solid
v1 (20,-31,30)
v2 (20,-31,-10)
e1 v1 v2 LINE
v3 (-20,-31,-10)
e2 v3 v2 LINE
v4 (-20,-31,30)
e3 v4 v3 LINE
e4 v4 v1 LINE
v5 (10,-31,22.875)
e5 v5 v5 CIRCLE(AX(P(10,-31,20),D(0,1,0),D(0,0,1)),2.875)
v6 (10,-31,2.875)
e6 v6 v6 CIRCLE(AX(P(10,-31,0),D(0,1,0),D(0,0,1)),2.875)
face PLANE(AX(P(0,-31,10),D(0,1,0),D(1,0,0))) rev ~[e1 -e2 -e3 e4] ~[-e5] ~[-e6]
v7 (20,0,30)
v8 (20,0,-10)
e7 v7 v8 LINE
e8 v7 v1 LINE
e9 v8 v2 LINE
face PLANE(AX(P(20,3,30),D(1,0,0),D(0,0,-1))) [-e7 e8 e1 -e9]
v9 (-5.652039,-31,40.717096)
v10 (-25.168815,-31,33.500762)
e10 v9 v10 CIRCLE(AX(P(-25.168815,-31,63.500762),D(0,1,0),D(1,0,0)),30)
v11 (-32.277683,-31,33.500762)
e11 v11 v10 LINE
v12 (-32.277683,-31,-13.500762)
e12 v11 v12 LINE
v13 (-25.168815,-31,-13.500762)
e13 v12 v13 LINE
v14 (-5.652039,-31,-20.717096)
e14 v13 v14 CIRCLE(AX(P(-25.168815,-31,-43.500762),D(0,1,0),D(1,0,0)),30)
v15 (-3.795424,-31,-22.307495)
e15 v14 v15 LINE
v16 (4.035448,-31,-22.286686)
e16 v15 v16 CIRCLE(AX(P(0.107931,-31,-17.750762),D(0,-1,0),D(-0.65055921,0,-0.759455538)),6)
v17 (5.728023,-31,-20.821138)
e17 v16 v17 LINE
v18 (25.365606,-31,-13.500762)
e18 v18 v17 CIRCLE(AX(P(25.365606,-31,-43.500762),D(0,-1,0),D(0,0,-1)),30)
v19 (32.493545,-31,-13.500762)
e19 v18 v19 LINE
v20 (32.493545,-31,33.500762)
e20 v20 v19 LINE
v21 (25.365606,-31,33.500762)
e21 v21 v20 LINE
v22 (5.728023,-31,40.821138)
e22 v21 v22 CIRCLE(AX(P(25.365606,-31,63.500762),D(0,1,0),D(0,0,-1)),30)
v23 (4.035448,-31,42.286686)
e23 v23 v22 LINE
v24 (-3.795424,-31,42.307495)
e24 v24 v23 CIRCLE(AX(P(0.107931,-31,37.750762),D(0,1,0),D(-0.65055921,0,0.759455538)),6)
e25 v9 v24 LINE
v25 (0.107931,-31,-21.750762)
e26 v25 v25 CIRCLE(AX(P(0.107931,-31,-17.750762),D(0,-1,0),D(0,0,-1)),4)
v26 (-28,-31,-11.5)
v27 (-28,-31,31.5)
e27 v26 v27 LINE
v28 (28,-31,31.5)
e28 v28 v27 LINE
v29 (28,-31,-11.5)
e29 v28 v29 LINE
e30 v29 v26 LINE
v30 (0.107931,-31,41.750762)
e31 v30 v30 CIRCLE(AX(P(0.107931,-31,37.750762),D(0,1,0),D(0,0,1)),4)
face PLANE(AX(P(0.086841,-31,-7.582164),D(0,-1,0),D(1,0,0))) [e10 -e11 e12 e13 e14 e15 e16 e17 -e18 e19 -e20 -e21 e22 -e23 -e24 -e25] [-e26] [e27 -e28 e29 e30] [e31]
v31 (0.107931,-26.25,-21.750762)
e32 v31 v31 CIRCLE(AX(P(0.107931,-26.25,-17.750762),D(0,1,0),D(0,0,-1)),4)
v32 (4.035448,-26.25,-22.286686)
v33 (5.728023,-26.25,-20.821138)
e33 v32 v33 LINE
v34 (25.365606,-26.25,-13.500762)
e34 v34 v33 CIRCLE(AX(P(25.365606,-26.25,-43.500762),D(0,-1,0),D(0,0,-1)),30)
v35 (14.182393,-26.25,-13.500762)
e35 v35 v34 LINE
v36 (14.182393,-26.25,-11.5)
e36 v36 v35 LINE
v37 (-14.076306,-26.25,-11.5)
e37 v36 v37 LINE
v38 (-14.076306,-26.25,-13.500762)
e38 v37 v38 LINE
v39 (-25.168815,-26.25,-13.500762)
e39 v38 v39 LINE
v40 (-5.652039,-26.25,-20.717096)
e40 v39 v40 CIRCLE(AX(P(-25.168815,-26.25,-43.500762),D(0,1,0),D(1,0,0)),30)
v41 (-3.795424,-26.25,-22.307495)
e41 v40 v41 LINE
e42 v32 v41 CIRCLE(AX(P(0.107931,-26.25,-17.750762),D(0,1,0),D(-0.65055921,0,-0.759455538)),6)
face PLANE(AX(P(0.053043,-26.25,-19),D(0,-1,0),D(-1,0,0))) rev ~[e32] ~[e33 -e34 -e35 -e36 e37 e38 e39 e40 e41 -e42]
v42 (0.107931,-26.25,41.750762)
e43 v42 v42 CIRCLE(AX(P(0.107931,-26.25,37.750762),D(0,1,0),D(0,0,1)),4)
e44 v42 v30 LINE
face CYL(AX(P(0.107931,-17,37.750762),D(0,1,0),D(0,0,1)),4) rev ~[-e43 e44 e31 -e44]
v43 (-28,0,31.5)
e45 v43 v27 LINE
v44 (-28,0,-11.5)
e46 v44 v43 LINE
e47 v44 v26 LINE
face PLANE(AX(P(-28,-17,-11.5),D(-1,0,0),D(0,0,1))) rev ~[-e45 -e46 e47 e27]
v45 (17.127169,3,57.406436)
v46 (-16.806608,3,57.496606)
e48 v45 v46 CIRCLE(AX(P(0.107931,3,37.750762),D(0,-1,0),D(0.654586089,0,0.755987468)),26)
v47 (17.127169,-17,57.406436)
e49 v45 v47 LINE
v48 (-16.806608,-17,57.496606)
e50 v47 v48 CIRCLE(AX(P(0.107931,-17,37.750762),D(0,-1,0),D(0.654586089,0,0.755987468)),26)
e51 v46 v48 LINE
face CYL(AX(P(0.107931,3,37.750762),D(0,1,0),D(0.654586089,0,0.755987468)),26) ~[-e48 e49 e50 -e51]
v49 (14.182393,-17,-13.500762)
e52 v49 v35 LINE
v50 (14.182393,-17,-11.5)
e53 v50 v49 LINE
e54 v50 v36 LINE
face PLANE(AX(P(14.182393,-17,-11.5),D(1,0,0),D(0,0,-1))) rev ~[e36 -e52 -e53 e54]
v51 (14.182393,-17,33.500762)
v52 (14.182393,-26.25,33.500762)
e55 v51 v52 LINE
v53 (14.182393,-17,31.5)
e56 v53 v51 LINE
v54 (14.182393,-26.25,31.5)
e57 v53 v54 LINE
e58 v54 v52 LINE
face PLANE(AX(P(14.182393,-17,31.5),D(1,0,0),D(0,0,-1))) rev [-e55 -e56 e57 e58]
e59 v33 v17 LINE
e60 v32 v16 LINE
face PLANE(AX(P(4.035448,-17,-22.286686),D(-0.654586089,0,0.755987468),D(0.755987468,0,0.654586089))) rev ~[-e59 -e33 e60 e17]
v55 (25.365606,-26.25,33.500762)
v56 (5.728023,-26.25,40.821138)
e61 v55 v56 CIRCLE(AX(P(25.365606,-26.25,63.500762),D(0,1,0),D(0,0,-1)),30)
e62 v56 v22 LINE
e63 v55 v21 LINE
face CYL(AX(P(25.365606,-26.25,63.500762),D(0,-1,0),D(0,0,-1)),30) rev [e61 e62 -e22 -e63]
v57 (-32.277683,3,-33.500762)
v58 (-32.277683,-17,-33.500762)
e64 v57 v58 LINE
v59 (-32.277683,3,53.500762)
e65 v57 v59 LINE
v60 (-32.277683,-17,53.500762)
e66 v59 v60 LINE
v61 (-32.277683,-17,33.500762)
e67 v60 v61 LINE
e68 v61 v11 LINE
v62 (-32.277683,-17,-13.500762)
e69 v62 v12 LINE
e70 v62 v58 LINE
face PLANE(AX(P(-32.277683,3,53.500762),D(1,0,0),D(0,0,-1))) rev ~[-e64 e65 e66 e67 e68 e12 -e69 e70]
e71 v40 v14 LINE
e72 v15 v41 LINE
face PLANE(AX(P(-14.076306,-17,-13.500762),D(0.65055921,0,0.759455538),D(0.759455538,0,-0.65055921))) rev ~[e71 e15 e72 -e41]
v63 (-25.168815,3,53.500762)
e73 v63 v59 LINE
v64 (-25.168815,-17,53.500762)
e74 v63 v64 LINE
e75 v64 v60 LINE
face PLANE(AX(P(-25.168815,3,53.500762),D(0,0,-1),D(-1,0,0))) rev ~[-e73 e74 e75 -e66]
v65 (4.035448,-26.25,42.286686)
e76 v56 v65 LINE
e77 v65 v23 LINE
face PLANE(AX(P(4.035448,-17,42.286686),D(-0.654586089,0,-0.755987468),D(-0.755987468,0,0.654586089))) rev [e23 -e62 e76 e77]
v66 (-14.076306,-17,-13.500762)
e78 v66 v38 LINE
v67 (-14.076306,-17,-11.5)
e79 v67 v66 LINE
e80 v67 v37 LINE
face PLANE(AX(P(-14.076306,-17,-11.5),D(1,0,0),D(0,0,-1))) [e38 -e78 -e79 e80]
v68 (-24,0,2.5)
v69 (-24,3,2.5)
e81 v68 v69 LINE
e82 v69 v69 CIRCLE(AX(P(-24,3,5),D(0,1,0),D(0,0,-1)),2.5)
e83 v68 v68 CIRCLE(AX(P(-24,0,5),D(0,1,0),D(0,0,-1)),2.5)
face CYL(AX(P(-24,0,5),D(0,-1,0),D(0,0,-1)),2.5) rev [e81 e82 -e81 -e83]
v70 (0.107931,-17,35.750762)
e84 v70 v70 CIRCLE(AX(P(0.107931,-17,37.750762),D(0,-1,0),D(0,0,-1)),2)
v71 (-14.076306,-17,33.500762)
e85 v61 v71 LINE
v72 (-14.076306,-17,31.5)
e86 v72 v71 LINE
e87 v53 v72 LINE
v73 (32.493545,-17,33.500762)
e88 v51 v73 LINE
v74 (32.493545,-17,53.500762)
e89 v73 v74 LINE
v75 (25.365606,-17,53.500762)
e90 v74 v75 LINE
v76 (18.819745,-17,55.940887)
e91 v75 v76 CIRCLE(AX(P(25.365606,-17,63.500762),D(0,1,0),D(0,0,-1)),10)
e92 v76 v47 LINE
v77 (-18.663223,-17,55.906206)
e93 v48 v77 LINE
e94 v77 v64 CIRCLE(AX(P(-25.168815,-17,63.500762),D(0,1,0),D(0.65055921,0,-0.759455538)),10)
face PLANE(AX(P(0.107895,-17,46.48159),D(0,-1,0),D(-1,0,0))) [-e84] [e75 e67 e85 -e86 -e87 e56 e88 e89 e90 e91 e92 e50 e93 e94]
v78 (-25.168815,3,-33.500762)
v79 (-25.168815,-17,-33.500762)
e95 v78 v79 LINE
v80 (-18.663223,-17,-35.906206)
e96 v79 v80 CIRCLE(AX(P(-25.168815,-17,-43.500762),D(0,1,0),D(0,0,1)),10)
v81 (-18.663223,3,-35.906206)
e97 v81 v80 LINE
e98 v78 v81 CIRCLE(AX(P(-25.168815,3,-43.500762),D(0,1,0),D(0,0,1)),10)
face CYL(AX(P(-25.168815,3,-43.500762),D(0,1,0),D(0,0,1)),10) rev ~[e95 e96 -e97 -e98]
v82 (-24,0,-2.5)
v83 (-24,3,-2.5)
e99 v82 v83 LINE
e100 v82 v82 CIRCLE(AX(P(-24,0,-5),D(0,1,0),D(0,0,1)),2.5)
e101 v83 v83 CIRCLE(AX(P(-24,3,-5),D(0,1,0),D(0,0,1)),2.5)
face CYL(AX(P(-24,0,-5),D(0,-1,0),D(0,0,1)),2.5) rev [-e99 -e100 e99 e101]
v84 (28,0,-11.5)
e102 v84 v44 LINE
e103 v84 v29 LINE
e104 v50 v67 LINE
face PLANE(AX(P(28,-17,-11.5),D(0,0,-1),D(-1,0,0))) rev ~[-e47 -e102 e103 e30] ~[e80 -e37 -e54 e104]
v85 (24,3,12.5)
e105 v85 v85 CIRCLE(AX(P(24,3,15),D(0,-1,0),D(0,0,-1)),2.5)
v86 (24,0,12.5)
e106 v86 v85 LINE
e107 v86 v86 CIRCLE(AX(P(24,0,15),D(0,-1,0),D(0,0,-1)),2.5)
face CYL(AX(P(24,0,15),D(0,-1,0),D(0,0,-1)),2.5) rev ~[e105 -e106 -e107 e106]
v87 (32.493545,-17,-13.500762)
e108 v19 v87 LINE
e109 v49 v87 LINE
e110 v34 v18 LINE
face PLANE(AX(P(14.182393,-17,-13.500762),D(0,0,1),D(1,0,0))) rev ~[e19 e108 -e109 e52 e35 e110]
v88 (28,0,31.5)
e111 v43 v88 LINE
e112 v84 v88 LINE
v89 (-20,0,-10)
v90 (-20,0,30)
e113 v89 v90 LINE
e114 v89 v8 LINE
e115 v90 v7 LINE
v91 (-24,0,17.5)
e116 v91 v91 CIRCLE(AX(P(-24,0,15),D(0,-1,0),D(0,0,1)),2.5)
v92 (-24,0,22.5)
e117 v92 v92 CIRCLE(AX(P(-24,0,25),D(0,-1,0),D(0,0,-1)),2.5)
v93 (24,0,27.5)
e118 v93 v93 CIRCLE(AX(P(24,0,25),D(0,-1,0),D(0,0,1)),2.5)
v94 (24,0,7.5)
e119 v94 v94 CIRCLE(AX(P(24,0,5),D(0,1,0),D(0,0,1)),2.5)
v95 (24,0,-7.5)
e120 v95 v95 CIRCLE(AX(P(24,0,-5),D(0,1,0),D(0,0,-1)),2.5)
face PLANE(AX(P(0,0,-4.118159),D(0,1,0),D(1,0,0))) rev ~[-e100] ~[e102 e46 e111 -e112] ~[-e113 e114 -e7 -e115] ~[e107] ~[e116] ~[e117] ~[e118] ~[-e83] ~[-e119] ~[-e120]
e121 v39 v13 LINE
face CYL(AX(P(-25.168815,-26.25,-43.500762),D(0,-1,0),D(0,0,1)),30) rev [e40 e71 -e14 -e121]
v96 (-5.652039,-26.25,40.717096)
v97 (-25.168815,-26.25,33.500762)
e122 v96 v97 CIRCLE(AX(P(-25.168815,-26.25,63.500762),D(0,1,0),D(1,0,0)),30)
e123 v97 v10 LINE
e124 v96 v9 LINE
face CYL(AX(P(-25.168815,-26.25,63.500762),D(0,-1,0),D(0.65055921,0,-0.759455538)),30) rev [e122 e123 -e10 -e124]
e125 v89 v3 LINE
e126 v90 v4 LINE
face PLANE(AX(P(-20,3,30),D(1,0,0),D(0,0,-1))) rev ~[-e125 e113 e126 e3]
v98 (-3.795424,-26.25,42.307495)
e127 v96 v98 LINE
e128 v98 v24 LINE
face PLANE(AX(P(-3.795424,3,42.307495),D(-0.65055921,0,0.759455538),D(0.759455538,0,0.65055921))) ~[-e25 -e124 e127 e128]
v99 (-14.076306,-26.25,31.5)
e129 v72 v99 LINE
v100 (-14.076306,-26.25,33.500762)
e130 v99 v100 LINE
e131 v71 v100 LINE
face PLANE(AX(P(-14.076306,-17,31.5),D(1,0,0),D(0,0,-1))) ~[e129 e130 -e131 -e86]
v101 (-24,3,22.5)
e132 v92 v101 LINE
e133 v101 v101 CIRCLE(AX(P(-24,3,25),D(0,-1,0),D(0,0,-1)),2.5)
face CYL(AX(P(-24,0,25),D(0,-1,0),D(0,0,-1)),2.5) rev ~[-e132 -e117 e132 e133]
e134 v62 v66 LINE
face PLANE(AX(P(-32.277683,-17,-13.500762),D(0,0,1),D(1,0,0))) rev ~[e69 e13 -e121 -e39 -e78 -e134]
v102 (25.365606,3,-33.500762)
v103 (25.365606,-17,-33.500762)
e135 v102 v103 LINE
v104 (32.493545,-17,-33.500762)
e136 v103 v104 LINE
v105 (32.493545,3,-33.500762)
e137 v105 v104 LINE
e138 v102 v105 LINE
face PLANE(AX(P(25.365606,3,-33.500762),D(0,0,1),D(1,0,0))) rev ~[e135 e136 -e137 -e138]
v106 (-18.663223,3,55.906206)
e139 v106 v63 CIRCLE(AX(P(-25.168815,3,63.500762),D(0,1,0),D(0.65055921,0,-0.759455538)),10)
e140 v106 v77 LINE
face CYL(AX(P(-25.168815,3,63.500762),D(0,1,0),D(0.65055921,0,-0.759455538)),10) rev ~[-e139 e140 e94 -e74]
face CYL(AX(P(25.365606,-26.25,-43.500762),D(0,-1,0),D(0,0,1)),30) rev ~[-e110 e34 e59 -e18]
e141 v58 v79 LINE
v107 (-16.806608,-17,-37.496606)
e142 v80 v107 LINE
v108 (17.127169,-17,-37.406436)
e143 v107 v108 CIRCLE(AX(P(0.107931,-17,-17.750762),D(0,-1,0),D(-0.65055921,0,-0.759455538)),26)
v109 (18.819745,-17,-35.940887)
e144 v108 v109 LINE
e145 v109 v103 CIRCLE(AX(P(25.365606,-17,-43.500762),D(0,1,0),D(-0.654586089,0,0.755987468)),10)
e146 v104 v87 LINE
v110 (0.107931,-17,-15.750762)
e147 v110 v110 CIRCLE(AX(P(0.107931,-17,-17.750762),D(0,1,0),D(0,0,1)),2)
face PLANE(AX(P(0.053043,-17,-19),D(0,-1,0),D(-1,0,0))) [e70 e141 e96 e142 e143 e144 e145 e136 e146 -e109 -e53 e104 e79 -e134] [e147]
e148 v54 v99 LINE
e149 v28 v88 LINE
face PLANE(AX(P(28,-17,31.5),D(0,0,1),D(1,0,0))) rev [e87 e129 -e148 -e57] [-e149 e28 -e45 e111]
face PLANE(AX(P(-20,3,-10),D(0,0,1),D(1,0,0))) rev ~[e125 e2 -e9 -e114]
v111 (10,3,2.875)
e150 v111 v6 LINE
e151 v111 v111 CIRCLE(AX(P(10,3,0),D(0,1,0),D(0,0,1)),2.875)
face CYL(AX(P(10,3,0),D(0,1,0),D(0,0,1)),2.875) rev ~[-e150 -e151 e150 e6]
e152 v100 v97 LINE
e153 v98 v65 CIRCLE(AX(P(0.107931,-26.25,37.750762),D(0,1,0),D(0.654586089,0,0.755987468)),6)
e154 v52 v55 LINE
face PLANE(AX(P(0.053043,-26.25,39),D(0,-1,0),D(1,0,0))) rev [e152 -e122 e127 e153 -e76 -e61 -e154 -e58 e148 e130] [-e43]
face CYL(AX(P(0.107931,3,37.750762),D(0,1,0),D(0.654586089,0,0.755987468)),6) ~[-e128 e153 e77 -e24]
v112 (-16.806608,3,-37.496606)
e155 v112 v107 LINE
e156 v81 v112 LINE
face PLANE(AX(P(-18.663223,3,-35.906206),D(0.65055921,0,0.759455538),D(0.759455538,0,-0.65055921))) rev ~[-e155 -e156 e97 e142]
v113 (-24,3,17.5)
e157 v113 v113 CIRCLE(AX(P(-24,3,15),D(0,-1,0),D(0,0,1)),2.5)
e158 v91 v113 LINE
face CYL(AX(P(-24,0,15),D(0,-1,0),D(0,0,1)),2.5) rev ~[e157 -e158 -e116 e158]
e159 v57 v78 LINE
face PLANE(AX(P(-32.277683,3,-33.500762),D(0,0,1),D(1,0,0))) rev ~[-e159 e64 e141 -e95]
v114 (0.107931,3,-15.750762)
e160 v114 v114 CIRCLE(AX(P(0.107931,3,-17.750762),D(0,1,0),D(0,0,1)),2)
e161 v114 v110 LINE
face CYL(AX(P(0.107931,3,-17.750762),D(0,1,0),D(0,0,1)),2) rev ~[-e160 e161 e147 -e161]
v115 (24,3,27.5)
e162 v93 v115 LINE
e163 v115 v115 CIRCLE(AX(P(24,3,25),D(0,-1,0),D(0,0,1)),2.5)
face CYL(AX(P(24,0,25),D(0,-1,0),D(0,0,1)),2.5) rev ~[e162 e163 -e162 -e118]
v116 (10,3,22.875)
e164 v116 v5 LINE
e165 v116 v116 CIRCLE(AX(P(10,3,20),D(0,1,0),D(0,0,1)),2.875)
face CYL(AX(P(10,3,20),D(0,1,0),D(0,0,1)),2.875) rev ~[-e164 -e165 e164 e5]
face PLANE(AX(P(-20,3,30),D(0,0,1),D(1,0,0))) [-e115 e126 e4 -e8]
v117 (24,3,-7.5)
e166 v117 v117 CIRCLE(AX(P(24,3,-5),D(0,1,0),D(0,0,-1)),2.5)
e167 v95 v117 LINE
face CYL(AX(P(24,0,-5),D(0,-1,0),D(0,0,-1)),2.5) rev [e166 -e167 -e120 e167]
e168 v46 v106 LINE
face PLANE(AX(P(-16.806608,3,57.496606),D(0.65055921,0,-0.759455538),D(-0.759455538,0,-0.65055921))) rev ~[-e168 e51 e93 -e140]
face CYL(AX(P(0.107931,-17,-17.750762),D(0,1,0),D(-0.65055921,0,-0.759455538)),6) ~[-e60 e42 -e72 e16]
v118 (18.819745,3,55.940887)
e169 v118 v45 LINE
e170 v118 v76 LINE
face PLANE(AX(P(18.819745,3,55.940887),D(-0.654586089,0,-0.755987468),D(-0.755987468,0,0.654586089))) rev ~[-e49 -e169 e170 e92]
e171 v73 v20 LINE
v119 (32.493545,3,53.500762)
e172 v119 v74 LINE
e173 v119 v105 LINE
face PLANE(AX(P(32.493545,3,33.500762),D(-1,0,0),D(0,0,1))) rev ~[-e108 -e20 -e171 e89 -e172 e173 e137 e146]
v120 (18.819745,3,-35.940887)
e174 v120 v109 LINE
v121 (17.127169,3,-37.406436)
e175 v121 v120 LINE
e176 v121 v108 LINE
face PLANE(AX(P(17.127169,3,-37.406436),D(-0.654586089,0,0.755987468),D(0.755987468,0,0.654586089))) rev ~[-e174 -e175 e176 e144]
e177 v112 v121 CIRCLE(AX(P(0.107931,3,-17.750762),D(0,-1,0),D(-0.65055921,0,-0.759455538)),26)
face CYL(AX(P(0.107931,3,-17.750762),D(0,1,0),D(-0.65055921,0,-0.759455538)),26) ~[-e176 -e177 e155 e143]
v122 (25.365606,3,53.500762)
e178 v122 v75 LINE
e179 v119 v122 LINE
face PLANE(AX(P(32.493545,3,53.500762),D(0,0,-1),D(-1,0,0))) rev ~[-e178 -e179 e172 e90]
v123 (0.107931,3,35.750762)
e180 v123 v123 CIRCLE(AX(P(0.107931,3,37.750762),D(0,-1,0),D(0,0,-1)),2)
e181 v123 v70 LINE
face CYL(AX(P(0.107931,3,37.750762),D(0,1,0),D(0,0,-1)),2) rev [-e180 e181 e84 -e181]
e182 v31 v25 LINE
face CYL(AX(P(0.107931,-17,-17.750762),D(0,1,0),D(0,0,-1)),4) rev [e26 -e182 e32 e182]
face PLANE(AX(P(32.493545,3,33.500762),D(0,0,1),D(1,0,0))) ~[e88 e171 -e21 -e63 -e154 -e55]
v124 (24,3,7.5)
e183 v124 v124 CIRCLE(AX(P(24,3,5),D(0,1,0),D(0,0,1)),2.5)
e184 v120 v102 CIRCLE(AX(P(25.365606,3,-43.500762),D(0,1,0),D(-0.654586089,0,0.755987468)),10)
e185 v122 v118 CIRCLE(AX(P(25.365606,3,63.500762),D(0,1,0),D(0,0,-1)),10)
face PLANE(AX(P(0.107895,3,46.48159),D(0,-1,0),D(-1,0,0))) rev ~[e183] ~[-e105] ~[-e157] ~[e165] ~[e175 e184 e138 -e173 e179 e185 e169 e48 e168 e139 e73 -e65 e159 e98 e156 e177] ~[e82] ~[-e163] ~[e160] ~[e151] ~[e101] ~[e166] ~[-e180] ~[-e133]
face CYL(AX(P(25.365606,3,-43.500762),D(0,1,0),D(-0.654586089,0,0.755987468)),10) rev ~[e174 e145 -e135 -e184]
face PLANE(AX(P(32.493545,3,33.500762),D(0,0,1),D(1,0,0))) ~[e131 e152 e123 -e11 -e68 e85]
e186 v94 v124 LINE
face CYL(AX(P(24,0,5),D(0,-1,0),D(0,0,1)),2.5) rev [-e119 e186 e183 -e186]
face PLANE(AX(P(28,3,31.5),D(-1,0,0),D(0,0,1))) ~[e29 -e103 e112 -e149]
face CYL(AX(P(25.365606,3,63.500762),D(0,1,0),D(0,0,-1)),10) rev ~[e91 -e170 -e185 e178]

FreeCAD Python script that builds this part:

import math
import FreeCAD as App
import Part
import Sketcher


def edges_at(feature, points):
    """Names of the edges that pass closest to the given points."""
    edges = feature.Shape.Edges
    near = lambda p: min(range(len(edges)), key=lambda i: edges[i].distToShape(Part.Vertex(*p))[0])
    return sorted({f"Edge{near(p) + 1}" for p in points})


def add_polygon(sketch, points):
    """Adds a closed chain of lines whose ends are joined by coincident constraints."""
    first, n = sketch.GeometryCount, len(points)
    for a, b in zip(points, points[1:] + points[:1]):
        sketch.addGeometry(Part.LineSegment(App.Vector(*a, 0), App.Vector(*b, 0)), False)
    for i in range(n):
        sketch.addConstraint(Sketcher.Constraint("Coincident", first + i, 2, first + (i + 1) % n, 1))

doc = App.newDocument("Part")
params = doc.addObject("Spreadsheet::Sheet", "Params")
for row, (alias, value) in enumerate([
    ("sketch1_diameter", "5 mm"),
    ("sketch1_width", "8 mm"),
    ("sketch1_width2", "40 mm"),
    ("sketch1_height", "23 mm"),
    ("sketch1_height2", "21.5 mm"),
    ("pad1_length", "3 mm"),
    ("sketch2_width", "56 mm"),
    ("sketch2_height", "23 mm"),
    ("pad2_length", "20 mm"),
    ("sketch3_diameter", "4 mm"),
    ("sketch3_radius", "6 mm"),
    ("pad3_length", "20 mm"),
    ("sketch4_diameter", "8 mm"),
    ("sketch4_radius", "6 mm"),
    ("sketch4_width", "56 mm"),
    ("sketch4_height", "23 mm"),
    ("pad4_length", "14 mm"),
    ("sketch5_height", "15 mm"),
    ("pocket1_length", "9.25 mm"),
    ("fillet_radius", "30 mm"),
    ("sketch6_width", "40 mm"),
    ("pad5_length", "34 mm"),
    ("sketch7_diameter", "5.75 mm"),
    ("sketch8_radius", "10 mm"),
    ("sketch8_radius2", "30 mm"),
    ("sketch8_radius3", "6 mm"),
    ("pad6_length", "20 mm"),
], start=1):
    params.set(f"A{row}", alias)
    params.set(f"B{row}", "=" + value)
    params.setAlias(f"B{row}", alias)

body = doc.addObject("PartDesign::Body", "Body")

# Sketch on XZ plane
sketch1 = body.newObject("Sketcher::SketchObject", "Sketch")
sketch1.AttachmentSupport = (doc.getObject("XZ_Plane"), [""])
sketch1.MapMode = "FlatFace"
add_polygon(sketch1, [(-28, 11.5), (-20, 11.5), (-20, -10), (20, -10), (20, 11.5), (28, 11.5), (28, -11.5), (-28, -11.5)])  # lines 0-7
sketch1.addGeometry(Part.Circle(App.Vector(-24, 5, 0), App.Vector(0, 0, 1), 2.5), False)  # 8
sketch1.addGeometry(Part.Circle(App.Vector(24, 5, 0), App.Vector(0, 0, 1), 2.5), False)  # 9
sketch1.addGeometry(Part.Circle(App.Vector(-24, -5, 0), App.Vector(0, 0, 1), 2.5), False)  # 10
sketch1.addGeometry(Part.Circle(App.Vector(24, -5, 0), App.Vector(0, 0, 1), 2.5), False)  # 11
sketch1.addConstraint([
    Sketcher.Constraint("Horizontal", 0),
    Sketcher.Constraint("Vertical", 1),
    Sketcher.Constraint("Horizontal", 2),
    Sketcher.Constraint("Vertical", 3),
    Sketcher.Constraint("Horizontal", 4),
    Sketcher.Constraint("Vertical", 5),
    Sketcher.Constraint("Horizontal", 6),
    Sketcher.Constraint("Vertical", 7),
    Sketcher.Constraint("Equal", 8, 9),
    Sketcher.Constraint("Equal", 9, 10),
    Sketcher.Constraint("Equal", 10, 11),
    Sketcher.Constraint("Symmetric", 9, 3, 10, 3, -1, 1),
    Sketcher.Constraint("Symmetric", 8, 3, 11, 3, -1, 1),
    Sketcher.Constraint("Symmetric", 4, 2, 6, 2, -1, 1),
    Sketcher.Constraint("Symmetric", 8, 3, 9, 3, -2),
    Sketcher.Constraint("Symmetric", 0, 2, 3, 2, -2),
    Sketcher.Constraint("Diameter", 8, 5.0),
    Sketcher.Constraint("DistanceX", 0, 1, 0, 2, 8.0),
    Sketcher.Constraint("DistanceX", 2, 1, 2, 2, 40.0),
    Sketcher.Constraint("DistanceY", 5, 2, 5, 1, 23.0),
    Sketcher.Constraint("DistanceY", 1, 2, 1, 1, 21.5),
    Sketcher.Constraint("DistanceX", 8, 3, -1, 1, 24.0),
    Sketcher.Constraint("DistanceY", -1, 1, 8, 3, 5.0),
])
sketch1.setExpression("Constraints[24]", "Params.sketch1_diameter")
sketch1.setExpression("Constraints[25]", "Params.sketch1_width")
sketch1.setExpression("Constraints[26]", "Params.sketch1_width2")
sketch1.setExpression("Constraints[27]", "Params.sketch1_height")
sketch1.setExpression("Constraints[28]", "Params.sketch1_height2")
pad1 = body.newObject("PartDesign::Pad", "Pad")
pad1.Profile = sketch1
pad1.setExpression("Length", "Params.pad1_length")
pad1.Reversed = True

# Sketch on XZ plane
sketch2 = body.newObject("Sketcher::SketchObject", "Sketch001")
sketch2.AttachmentSupport = (doc.getObject("XZ_Plane"), [""])
sketch2.MapMode = "FlatFace"
sketch2.AttachmentOffset = App.Placement(App.Vector(0, 0, -3), App.Rotation())
add_polygon(sketch2, [(-32.3, 11.5), (-28, 11.5), (-28, -11.5), (28, -11.5), (28, 11.5), (32.5, 11.5), (32.5, -13.5), (-32.3, -13.5)])  # lines 0-7
sketch2.addConstraint([
    Sketcher.Constraint("Horizontal", 0),
    Sketcher.Constraint("Vertical", 1),
    Sketcher.Constraint("Horizontal", 2),
    Sketcher.Constraint("Vertical", 3),
    Sketcher.Constraint("Horizontal", 4),
    Sketcher.Constraint("Vertical", 5),
    Sketcher.Constraint("Horizontal", 6),
    Sketcher.Constraint("Vertical", 7),
    Sketcher.Constraint("Symmetric", 0, 2, 2, 2, -1, 1),
    Sketcher.Constraint("Horizontal", 0, 2, 3, 2),
    Sketcher.Constraint("DistanceX", 2, 1, 2, 2, 56.0),
    Sketcher.Constraint("DistanceY", 1, 2, 1, 1, 23.0),
    Sketcher.Constraint("DistanceX", 6, 2, 6, 1, 64.771228),
    Sketcher.Constraint("DistanceY", 5, 2, 5, 1, 25.000762),
    Sketcher.Constraint("DistanceX", 0, 1, 0, 2, 4.277683),
])
sketch2.setExpression("Constraints[18]", "Params.sketch2_width")
sketch2.setExpression("Constraints[19]", "Params.sketch2_height")
pad2 = body.newObject("PartDesign::Pad", "Pad001")
pad2.Profile = sketch2
pad2.setExpression("Length", "Params.pad2_length")

# Sketch on XZ plane
sketch3 = body.newObject("Sketcher::SketchObject", "Sketch002")
sketch3.AttachmentSupport = (doc.getObject("XZ_Plane"), [""])
sketch3.MapMode = "FlatFace"
sketch3.AttachmentOffset = App.Placement(App.Vector(0, 0, -3), App.Rotation())
sketch3.addGeometry([
    Part.LineSegment(App.Vector(-3.8, -22.3, 0), App.Vector(-16.4, -11.5, 0)),  # 0
    Part.LineSegment(App.Vector(-16.4, -11.5, 0), App.Vector(16.5, -11.5, 0)),  # 1
    Part.LineSegment(App.Vector(16.5, -11.5, 0), App.Vector(4, -22.3, 0)),  # 2
    Part.ArcOfCircle(Part.Circle(App.Vector(0.1, -17.8, 0), App.Vector(0, 0, 1), 6), math.radians(-131), math.radians(-49)),  # 3
    Part.Circle(App.Vector(0.1, -17.8, 0), App.Vector(0, 0, 1), 2),  # 4
], False)
sketch3.addConstraint([
    Sketcher.Constraint("Coincident", 0, 2, 1, 1),
    Sketcher.Constraint("Coincident", 1, 2, 2, 1),
    Sketcher.Constraint("Tangent", 2, 2, 3, 2),
    Sketcher.Constraint("Tangent", 3, 1, 0, 1),
    Sketcher.Constraint("Horizontal", 1),
    Sketcher.Constraint("Coincident", 4, 3, 3, 3),
    Sketcher.Constraint("Diameter", 4, 4.0),
    Sketcher.Constraint("Radius", 3, 6.0),
    Sketcher.Constraint("DistanceY", 0, 2, -1, 1, 11.5),
    Sketcher.Constraint("DistanceX", 1, 1, 1, 2, 32.905063),
    Sketcher.Constraint("DistanceX", -1, 1, 3, 3, 0.107931),
    Sketcher.Constraint("DistanceY", 3, 3, -1, 1, 17.750762),
    Sketcher.Constraint("DistanceX", -1, 1, 1, 2, 16.49309),
])
sketch3.setExpression("Constraints[6]", "Params.sketch3_diameter")
sketch3.setExpression("Constraints[7]", "Params.sketch3_radius")
pad3 = body.newObject("PartDesign::Pad", "Pad002")
pad3.Profile = sketch3
pad3.setExpression("Length", "Params.pad3_length")

# Sketch on XZ plane
sketch4 = body.newObject("Sketcher::SketchObject", "Sketch003")
sketch4.AttachmentSupport = (doc.getObject("XZ_Plane"), [""])
sketch4.MapMode = "FlatFace"
sketch4.AttachmentOffset = App.Placement(App.Vector(0, 0, 17), App.Rotation())
sketch4.addGeometry([
    Part.LineSegment(App.Vector(28, 11.5, 0), App.Vector(28, -11.5, 0)),  # 0
    Part.LineSegment(App.Vector(28, -11.5, 0), App.Vector(-28, -11.5, 0)),  # 1
    Part.LineSegment(App.Vector(-28, -11.5, 0), App.Vector(-28, 11.5, 0)),  # 2
    Part.LineSegment(App.Vector(-28, 11.5, 0), App.Vector(-32.3, 11.5, 0)),  # 3
    Part.LineSegment(App.Vector(-32.3, 11.5, 0), App.Vector(-32.3, -13.5, 0)),  # 4
    Part.LineSegment(App.Vector(-32.3, -13.5, 0), App.Vector(-14.1, -13.5, 0)),  # 5
    Part.LineSegment(App.Vector(-14.1, -13.5, 0), App.Vector(-3.8, -22.3, 0)),  # 6
    Part.ArcOfCircle(Part.Circle(App.Vector(0.1, -17.8, 0), App.Vector(0, 0, 1), 6), math.radians(-131), math.radians(-49)),  # 7
    Part.LineSegment(App.Vector(4, -22.3, 0), App.Vector(14.2, -13.5, 0)),  # 8
    Part.LineSegment(App.Vector(14.2, -13.5, 0), App.Vector(32.5, -13.5, 0)),  # 9
    Part.LineSegment(App.Vector(32.5, -13.5, 0), App.Vector(32.5, 11.5, 0)),  # 10
    Part.LineSegment(App.Vector(32.5, 11.5, 0), App.Vector(28, 11.5, 0)),  # 11
    Part.Circle(App.Vector(0.1, -17.8, 0), App.Vector(0, 0, 1), 4),  # 12
], False)
sketch4.addConstraint([
    Sketcher.Constraint("Coincident", 0, 2, 1, 1),
    Sketcher.Constraint("Coincident", 1, 2, 2, 1),
    Sketcher.Constraint("Coincident", 2, 2, 3, 1),
    Sketcher.Constraint("Coincident", 3, 2, 4, 1),
    Sketcher.Constraint("Coincident", 4, 2, 5, 1),
    Sketcher.Constraint("Coincident", 5, 2, 6, 1),
    Sketcher.Constraint("Tangent", 6, 2, 7, 1),
    Sketcher.Constraint("Tangent", 7, 2, 8, 1),
    Sketcher.Constraint("Coincident", 8, 2, 9, 1),
    Sketcher.Constraint("Coincident", 9, 2, 10, 1),
    Sketcher.Constraint("Coincident", 10, 2, 11, 1),
    Sketcher.Constraint("Coincident", 11, 2, 0, 1),
    Sketcher.Constraint("Vertical", 0),
    Sketcher.Constraint("Horizontal", 1),
    Sketcher.Constraint("Vertical", 2),
    Sketcher.Constraint("Horizontal", 3),
    Sketcher.Constraint("Vertical", 4),
    Sketcher.Constraint("Horizontal", 5),
    Sketcher.Constraint("Horizontal", 9),
    Sketcher.Constraint("Vertical", 10),
    Sketcher.Constraint("Horizontal", 11),
    Sketcher.Constraint("Coincident", 12, 3, 7, 3),
    Sketcher.Constraint("Symmetric", 0, 2, 2, 2, -1, 1),
    Sketcher.Constraint("Horizontal", 5, 2, 8, 2),
    Sketcher.Constraint("Horizontal", 3, 2, 10, 2),
    Sketcher.Constraint("Diameter", 12, 8.0),
    Sketcher.Constraint("Radius", 7, 6.0),
    Sketcher.Constraint("DistanceX", 1, 2, 1, 1, 56.0),
    Sketcher.Constraint("DistanceY", 0, 2, 0, 1, 23.0),
    Sketcher.Constraint("DistanceY", 7, 3, 4, 2, 4.25),
    Sketcher.Constraint("DistanceY", 4, 2, 4, 1, 25.000762),
    Sketcher.Constraint("DistanceX", 3, 2, 3, 1, 4.277683),
    Sketcher.Constraint("DistanceX", 5, 1, 5, 2, 18.201377),
    Sketcher.Constraint("DistanceX", 9, 1, 9, 2, 18.311152),
    Sketcher.Constraint("DistanceX", 11, 2, 11, 1, 4.493545),
    Sketcher.Constraint("DistanceX", -1, 1, 7, 3, 0.107931),
])
sketch4.setExpression("Constraints[25]", "Params.sketch4_diameter")
sketch4.setExpression("Constraints[26]", "Params.sketch4_radius")
sketch4.setExpression("Constraints[27]", "Params.sketch4_width")
sketch4.setExpression("Constraints[28]", "Params.sketch4_height")
pad4 = body.newObject("PartDesign::Pad", "Pad003")
pad4.Profile = sketch4
pad4.setExpression("Length", "Params.pad4_length")

# Sketch on XZ plane
sketch5 = body.newObject("Sketcher::SketchObject", "Sketch004")
sketch5.AttachmentSupport = (doc.getObject("XZ_Plane"), [""])
sketch5.MapMode = "FlatFace"
sketch5.AttachmentOffset = App.Placement(App.Vector(0, 0, 17), App.Rotation())
add_polygon(sketch5, [(14, -26), (14, -12), (-14, -12), (-14, -26)])  # lines 0-3
sketch5.addConstraint([
    Sketcher.Constraint("Vertical", 0),
    Sketcher.Constraint("Horizontal", 1),
    Sketcher.Constraint("Vertical", 2),
    Sketcher.Constraint("Horizontal", 3),
    Sketcher.Constraint("DistanceY", 0, 1, 0, 2, 15.0),
    Sketcher.Constraint("DistanceY", 0, 2, -1, 1, 11.5),
    Sketcher.Constraint("DistanceX", 1, 2, 1, 1, 28.258699),
    Sketcher.Constraint("DistanceX", -1, 1, 0, 2, 14.182393),
])
sketch5.setExpression("Constraints[8]", "Params.sketch5_height")
pocket1 = body.newObject("PartDesign::Pocket", "Pocket")
pocket1.Profile = sketch5
pocket1.setExpression("Length", "Params.pocket1_length")
pocket1.Reversed = True
doc.recompute()

datumplane = body.newObject("PartDesign::Plane", "DatumPlane")
datumplane.AttachmentSupport = (doc.getObject("XY_Plane"), [""])
datumplane.MapMode = "FlatFace"
datumplane.AttachmentOffset = App.Placement(App.Vector(0, 0, 10), App.Rotation())
mirrored = body.newObject("PartDesign::Mirrored", "Mirrored")
mirrored.Originals = [pad1, pad2, pad3, pad4, pocket1]
mirrored.MirrorPlane = (datumplane, [""])
body.Tip = mirrored
doc.recompute()

fillet = body.newObject("PartDesign::Fillet", "Fillet")
fillet.Base = (mirrored, edges_at(mirrored, [
    (14.182, -28.625, -13.501),
    (-14.076, -7, -13.501),
    (14.182, -28.625, 33.501),
    (-14.076, -7, 33.501),
    (14.182, -7, 33.501),
    (-14.076, -28.625, 33.501),
    (-14.076, -28.625, -13.501),
    (14.182, -7, -13.501),
]))
fillet.setExpression("Radius", "Params.fillet_radius")

# Sketch on XZ plane
sketch6 = body.newObject("Sketcher::SketchObject", "Sketch005")
sketch6.AttachmentSupport = (doc.getObject("XZ_Plane"), [""])
sketch6.MapMode = "FlatFace"
sketch6.AttachmentOffset = App.Placement(App.Vector(0, 0, -3), App.Rotation())
add_polygon(sketch6, [(-20, -10), (-20, 30), (20, 30), (20, -10)])  # lines 0-3
sketch6.addConstraint([
    Sketcher.Constraint("Vertical", 0),
    Sketcher.Constraint("Horizontal", 1),
    Sketcher.Constraint("Vertical", 2),
    Sketcher.Constraint("Horizontal", 3),
    Sketcher.Constraint("Equal", 3, 0),
    Sketcher.Constraint("DistanceX", 1, 1, 1, 2, 40.0),
    Sketcher.Constraint("DistanceX", 0, 2, -1, 1, 20.0),
    Sketcher.Constraint("DistanceY", -1, 1, 0, 2, 30.0),
])
sketch6.setExpression("Constraints[9]", "Params.sketch6_width")
pad5 = body.newObject("PartDesign::Pad", "Pad004")
pad5.Profile = sketch6
pad5.setExpression("Length", "Params.pad5_length")

# Sketch on XZ plane
sketch7 = body.newObject("Sketcher::SketchObject", "Sketch006")
sketch7.AttachmentSupport = (doc.getObject("XZ_Plane"), [""])
sketch7.MapMode = "FlatFace"
sketch7.AttachmentOffset = App.Placement(App.Vector(0, 0, -3), App.Rotation())
sketch7.addGeometry([
    Part.Circle(App.Vector(10, 0, 0), App.Vector(0, 0, 1), 2.9),
    Part.Circle(App.Vector(10, 20, 0), App.Vector(0, 0, 1), 2.9),
], False)
sketch7.addConstraint([
    Sketcher.Constraint("Equal", 0, 1),
    Sketcher.Constraint("PointOnObject", 0, 3, -1),
    Sketcher.Constraint("Vertical", 0, 3, 1, 3),
    Sketcher.Constraint("Diameter", 0, 5.75),
    Sketcher.Constraint("DistanceX", -1, 1, 0, 3, 10.0),
    Sketcher.Constraint("DistanceY", -1, 1, 1, 3, 20.0),
])
sketch7.setExpression("Constraints[3]", "Params.sketch7_diameter")
pocket2 = body.newObject("PartDesign::Pocket", "Pocket001")
pocket2.Profile = sketch7
pocket2.Type = "ThroughAll"
pocket2.Reversed = True

# Sketch on XZ plane
sketch8 = body.newObject("Sketcher::SketchObject", "Sketch007")
sketch8.AttachmentSupport = (doc.getObject("XZ_Plane"), [""])
sketch8.MapMode = "FlatFace"
sketch8.AttachmentOffset = App.Placement(App.Vector(0, 0, -3), App.Rotation())
sketch8.addGeometry([
    Part.ArcOfCircle(Part.Circle(App.Vector(25.4, 63.5, 0), App.Vector(0, 0, 1), 10), math.radians(-131), math.radians(-90)),  # 0
    Part.LineSegment(App.Vector(25.4, 53.5, 0), App.Vector(32.5, 53.5, 0)),  # 1
    Part.LineSegment(App.Vector(32.5, 53.5, 0), App.Vector(32.5, 33.5, 0)),  # 2
    Part.LineSegment(App.Vector(32.5, 33.5, 0), App.Vector(25.4, 33.5, 0)),  # 3
    Part.ArcOfCircle(Part.Circle(App.Vector(25.4, 63.5, 0), App.Vector(0, 0, 1), 30), math.radians(-131), math.radians(-90)),  # 4
    Part.LineSegment(App.Vector(5.7, 40.8, 0), App.Vector(4, 42.3, 0)),  # 5
    Part.ArcOfCircle(Part.Circle(App.Vector(0.1, 37.8, 0), App.Vector(0, 0, 1), 6), math.radians(49), math.radians(131)),  # 6
    Part.LineSegment(App.Vector(-3.8, 42.3, 0), App.Vector(-5.7, 40.7, 0)),  # 7
    Part.ArcOfCircle(Part.Circle(App.Vector(-25.2, 63.5, 0), App.Vector(0, 0, 1), 30), math.radians(-90), math.radians(-49)),  # 8
    Part.LineSegment(App.Vector(-25.2, 33.5, 0), App.Vector(-32.3, 33.5, 0)),  # 9
    Part.LineSegment(App.Vector(-32.3, 33.5, 0), App.Vector(-32.3, 53.5, 0)),  # 10
    Part.LineSegment(App.Vector(-32.3, 53.5, 0), App.Vector(-25.2, 53.5, 0)),  # 11
    Part.ArcOfCircle(Part.Circle(App.Vector(-25.2, 63.5, 0), App.Vector(0, 0, 1), 10), math.radians(-90), math.radians(-49)),  # 12
    Part.LineSegment(App.Vector(-18.7, 55.9, 0), App.Vector(-16.8, 57.5, 0)),  # 13
    Part.ArcOfCircle(Part.Circle(App.Vector(0.1, 37.8, 0), App.Vector(0, 0, 1), 26), math.radians(49), math.radians(131)),  # 14
    Part.LineSegment(App.Vector(17.1, 57.4, 0), App.Vector(18.8, 55.9, 0)),  # 15
    Part.ArcOfCircle(Part.Circle(App.Vector(25.4, -43.5, 0), App.Vector(0, 0, 1), 10), math.radians(90), math.radians(131)),  # 16
    Part.LineSegment(App.Vector(18.8, -35.9, 0), App.Vector(17.1, -37.4, 0)),  # 17
    Part.ArcOfCircle(Part.Circle(App.Vector(0.1, -17.8, 0), App.Vector(0, 0, 1), 26), math.radians(-131), math.radians(-49)),  # 18
    Part.LineSegment(App.Vector(-16.8, -37.5, 0), App.Vector(-18.7, -35.9, 0)),  # 19
    Part.ArcOfCircle(Part.Circle(App.Vector(-25.2, -43.5, 0), App.Vector(0, 0, 1), 10), math.radians(49), math.radians(90)),  # 20
    Part.LineSegment(App.Vector(-25.2, -33.5, 0), App.Vector(-32.3, -33.5, 0)),  # 21
    Part.LineSegment(App.Vector(-32.3, -33.5, 0), App.Vector(-32.3, -13.5, 0)),  # 22
    Part.LineSegment(App.Vector(-32.3, -13.5, 0), App.Vector(-25.2, -13.5, 0)),  # 23
    Part.ArcOfCircle(Part.Circle(App.Vector(-25.2, -43.5, 0), App.Vector(0, 0, 1), 30), math.radians(49), math.radians(90)),  # 24
    Part.LineSegment(App.Vector(-5.7, -20.7, 0), App.Vector(-3.8, -22.3, 0)),  # 25
    Part.ArcOfCircle(Part.Circle(App.Vector(0.1, -17.8, 0), App.Vector(0, 0, 1), 6), math.radians(-131), math.radians(-49)),  # 26
    Part.LineSegment(App.Vector(4, -22.3, 0), App.Vector(5.7, -20.8, 0)),  # 27
    Part.ArcOfCircle(Part.Circle(App.Vector(25.4, -43.5, 0), App.Vector(0, 0, 1), 30), math.radians(90), math.radians(131)),  # 28
    Part.LineSegment(App.Vector(25.4, -13.5, 0), App.Vector(32.5, -13.5, 0)),  # 29
    Part.LineSegment(App.Vector(32.5, -13.5, 0), App.Vector(32.5, -33.5, 0)),  # 30
    Part.LineSegment(App.Vector(32.5, -33.5, 0), App.Vector(25.4, -33.5, 0)),  # 31
], False)
sketch8.addConstraint([
    Sketcher.Constraint("Tangent", 0, 2, 1, 1),
    Sketcher.Constraint("Coincident", 1, 2, 2, 1),
    Sketcher.Constraint("Coincident", 2, 2, 3, 1),
    Sketcher.Constraint("Tangent", 3, 2, 4, 2),
    Sketcher.Constraint("Tangent", 4, 1, 5, 1),
    Sketcher.Constraint("Tangent", 5, 2, 6, 1),
    Sketcher.Constraint("Tangent", 6, 2, 7, 1),
    Sketcher.Constraint("Tangent", 7, 2, 8, 2),
    Sketcher.Constraint("Tangent", 8, 1, 9, 1),
    Sketcher.Constraint("Coincident", 9, 2, 10, 1),
    Sketcher.Constraint("Coincident", 10, 2, 11, 1),
    Sketcher.Constraint("Tangent", 11, 2, 12, 1),
    Sketcher.Constraint("Tangent", 12, 2, 13, 1),
    Sketcher.Constraint("Tangent", 13, 2, 14, 2),
    Sketcher.Constraint("Tangent", 14, 1, 15, 1),
    Sketcher.Constraint("Tangent", 15, 2, 0, 1),
    Sketcher.Constraint("Tangent", 16, 2, 17, 1),
    Sketcher.Constraint("Tangent", 17, 2, 18, 2),
    Sketcher.Constraint("Tangent", 18, 1, 19, 1),
    Sketcher.Constraint("Tangent", 19, 2, 20, 1),
    Sketcher.Constraint("Tangent", 20, 2, 21, 1),
    Sketcher.Constraint("Coincident", 21, 2, 22, 1),
    Sketcher.Constraint("Coincident", 22, 2, 23, 1),
    Sketcher.Constraint("Tangent", 23, 2, 24, 2),
    Sketcher.Constraint("Tangent", 24, 1, 25, 1),
    Sketcher.Constraint("Tangent", 25, 2, 26, 1),
    Sketcher.Constraint("Tangent", 26, 2, 27, 1),
    Sketcher.Constraint("Tangent", 27, 2, 28, 2),
    Sketcher.Constraint("Tangent", 28, 1, 29, 1),
    Sketcher.Constraint("Coincident", 29, 2, 30, 1),
    Sketcher.Constraint("Coincident", 30, 2, 31, 1),
    Sketcher.Constraint("Tangent", 31, 2, 16, 1),
    Sketcher.Constraint("Horizontal", 1),
    Sketcher.Constraint("Vertical", 2),
    Sketcher.Constraint("Horizontal", 3),
    Sketcher.Constraint("Horizontal", 9),
    Sketcher.Constraint("Vertical", 10),
    Sketcher.Constraint("Horizontal", 11),
    Sketcher.Constraint("Horizontal", 21),
    Sketcher.Constraint("Vertical", 22),
    Sketcher.Constraint("Horizontal", 23),
    Sketcher.Constraint("Horizontal", 29),
    Sketcher.Constraint("Vertical", 30),
    Sketcher.Constraint("Horizontal", 31),
    Sketcher.Constraint("Coincident", 4, 3, 0, 3),
    Sketcher.Constraint("Coincident", 12, 3, 8, 3),
    Sketcher.Constraint("Coincident", 14, 3, 6, 3),
    Sketcher.Constraint("Coincident", 24, 3, 20, 3),
    Sketcher.Constraint("Coincident", 26, 3, 18, 3),
    Sketcher.Constraint("Coincident", 28, 3, 16, 3),
    Sketcher.Constraint("Equal", 4, 8),
    Sketcher.Constraint("Equal", 0, 12),
    Sketcher.Constraint("Equal", 12, 16),
    Sketcher.Constraint("Equal", 14, 18),
    Sketcher.Constraint("Equal", 16, 20),
    Sketcher.Constraint("Equal", 8, 24),
    Sketcher.Constraint("Equal", 6, 26),
    Sketcher.Constraint("Equal", 24, 28),
    Sketcher.Constraint("Symmetric", 8, 1, 20, 2, -1),
    Sketcher.Constraint("Symmetric", 2, 2, 30, 2, -1),
    Sketcher.Constraint("Parallel", 7, 13),
    Sketcher.Constraint("Horizontal", 4, 3, 8, 3),
    Sketcher.Constraint("Vertical", 4, 3, 16, 3),
    Sketcher.Constraint("Vertical", 14, 3, 18, 3),
    Sketcher.Constraint("Vertical", 15, 2, 16, 2),
    Sketcher.Constraint("Vertical", 10, 2, 21, 2),
    Sketcher.Constraint("Radius", 0, 10.0),
    Sketcher.Constraint("Radius", 4, 30.0),
    Sketcher.Constraint("Radius", 6, 6.0),
    Sketcher.Constraint("DistanceY", 6, 3, 0, 3, 25.75),
    Sketcher.Constraint("DistanceX", 1, 1, 1, 2, 7.127939),
    Sketcher.Constraint("DistanceX", 9, 2, 9, 1, 7.108868),
    Sketcher.Constraint("DistanceY", 7, 2, 6, 2, 1.590399),
    Sketcher.Constraint("DistanceX", 15, 2, 1, 2, 13.6738),
    Sketcher.Constraint("DistanceY", -1, 1, 0, 3, 63.500762),
    Sketcher.Constraint("DistanceX", -1, 1, 6, 3, 0.107931),
])
sketch8.setExpression("Constraints[66]", "Params.sketch8_radius")
sketch8.setExpression("Constraints[67]", "Params.sketch8_radius2")
sketch8.setExpression("Constraints[68]", "Params.sketch8_radius3")
pad6 = body.newObject("PartDesign::Pad", "Pad005")
pad6.Profile = sketch8
pad6.setExpression("Length", "Params.pad6_length")

doc.recompute()
